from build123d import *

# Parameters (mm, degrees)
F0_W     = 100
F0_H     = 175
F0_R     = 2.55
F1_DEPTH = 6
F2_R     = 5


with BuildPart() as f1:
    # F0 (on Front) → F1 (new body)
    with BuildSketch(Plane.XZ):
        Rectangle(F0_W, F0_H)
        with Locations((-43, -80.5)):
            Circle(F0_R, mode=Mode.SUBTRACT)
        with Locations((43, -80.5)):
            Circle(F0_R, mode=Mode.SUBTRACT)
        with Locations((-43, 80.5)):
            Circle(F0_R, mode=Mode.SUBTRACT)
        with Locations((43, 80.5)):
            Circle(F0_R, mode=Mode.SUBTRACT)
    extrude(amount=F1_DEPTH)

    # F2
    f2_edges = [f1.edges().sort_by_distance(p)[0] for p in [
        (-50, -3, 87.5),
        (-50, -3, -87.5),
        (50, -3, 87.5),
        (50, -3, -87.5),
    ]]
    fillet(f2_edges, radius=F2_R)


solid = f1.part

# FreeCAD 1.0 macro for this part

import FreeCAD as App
import Part
import Sketcher
Q = App.Units.Quantity


def edges_at(feature, points):
    """Names of the edges that pass closest to the given points."""
    edges = feature.Shape.Edges
    near = lambda p: min(range(len(edges)), key=lambda i: edges[i].distToShape(Part.Vertex(*p))[0])
    return sorted({f"Edge{near(p) + 1}" for p in points})

doc = App.newDocument("Part")
body = doc.addObject("PartDesign::Body", "Body")

sketch1 = body.newObject("Sketcher::SketchObject", "Sketch")
sketch1.AttachmentSupport = (doc.getObject("XZ_Plane"), [""])
sketch1.MapMode = "FlatFace"
sketch1.addGeometry(Part.LineSegment(App.Vector(-50, 87.5, 0), App.Vector(-50, -87.5, 0)), False)
sketch1.addGeometry(Part.LineSegment(App.Vector(-50, -87.5, 0), App.Vector(50, -87.5, 0)), False)
sketch1.addGeometry(Part.LineSegment(App.Vector(50, -87.5, 0), App.Vector(50, 87.5, 0)), False)
sketch1.addGeometry(Part.LineSegment(App.Vector(50, 87.5, 0), App.Vector(-50, 87.5, 0)), False)
sketch1.addGeometry(Part.Circle(App.Vector(-43, -80.5, 0), App.Vector(0, 0, 1), 2.5), False)
sketch1.addGeometry(Part.Circle(App.Vector(43, -80.5, 0), App.Vector(0, 0, 1), 2.5), False)
sketch1.addGeometry(Part.Circle(App.Vector(-43, 80.5, 0), App.Vector(0, 0, 1), 2.5), False)
sketch1.addGeometry(Part.Circle(App.Vector(43, 80.5, 0), App.Vector(0, 0, 1), 2.5), False)
sketch1.addConstraint(Sketcher.Constraint("Coincident", 0, 2, 1, 1))
sketch1.addConstraint(Sketcher.Constraint("Coincident", 1, 2, 2, 1))
sketch1.addConstraint(Sketcher.Constraint("Coincident", 2, 2, 3, 1))
sketch1.addConstraint(Sketcher.Constraint("Coincident", 3, 2, 0, 1))
sketch1.addConstraint(Sketcher.Constraint("Vertical", 0))
sketch1.addConstraint(Sketcher.Constraint("Horizontal", 1))
sketch1.addConstraint(Sketcher.Constraint("Vertical", 2))
sketch1.addConstraint(Sketcher.Constraint("Horizontal", 3))
sketch1.addConstraint(Sketcher.Constraint("Equal", 4, 5))
sketch1.addConstraint(Sketcher.Constraint("Equal", 5, 6))
sketch1.addConstraint(Sketcher.Constraint("Equal", 6, 7))
sketch1.addConstraint(Sketcher.Constraint("Symmetric", 5, 3, 6, 3, -1, 1))
sketch1.addConstraint(Sketcher.Constraint("Symmetric", 4, 3, 7, 3, -1, 1))
sketch1.addConstraint(Sketcher.Constraint("Symmetric", 0, 2, 2, 2, -1, 1))
sketch1.addConstraint(Sketcher.Constraint("Symmetric", 4, 3, 5, 3, -2))
sketch1.addConstraint(Sketcher.Constraint("Diameter", 4, Q("5.1 mm")))
sketch1.addConstraint(Sketcher.Constraint("DistanceX", 1, 1, 1, 2, Q("100 mm")))
sketch1.addConstraint(Sketcher.Constraint("DistanceY", 0, 2, 0, 1, Q("175 mm")))
sketch1.addConstraint(Sketcher.Constraint("DistanceX", 4, 3, -1, 1, Q("43 mm")))
sketch1.addConstraint(Sketcher.Constraint("DistanceY", 4, 3, 6, 3, Q("161 mm")))
pad1 = body.newObject("PartDesign::Pad", "Pad")
pad1.Profile = sketch1
pad1.Length = 6
doc.recompute()

fillet = body.newObject("PartDesign::Fillet", "Fillet")
fillet.Base = (pad1, edges_at(pad1, [
    (-50, -3, 87.5),
    (-50, -3, -87.5),
    (50, -3, 87.5),
    (50, -3, -87.5),
]))
fillet.Radius = 5

doc.recompute()
